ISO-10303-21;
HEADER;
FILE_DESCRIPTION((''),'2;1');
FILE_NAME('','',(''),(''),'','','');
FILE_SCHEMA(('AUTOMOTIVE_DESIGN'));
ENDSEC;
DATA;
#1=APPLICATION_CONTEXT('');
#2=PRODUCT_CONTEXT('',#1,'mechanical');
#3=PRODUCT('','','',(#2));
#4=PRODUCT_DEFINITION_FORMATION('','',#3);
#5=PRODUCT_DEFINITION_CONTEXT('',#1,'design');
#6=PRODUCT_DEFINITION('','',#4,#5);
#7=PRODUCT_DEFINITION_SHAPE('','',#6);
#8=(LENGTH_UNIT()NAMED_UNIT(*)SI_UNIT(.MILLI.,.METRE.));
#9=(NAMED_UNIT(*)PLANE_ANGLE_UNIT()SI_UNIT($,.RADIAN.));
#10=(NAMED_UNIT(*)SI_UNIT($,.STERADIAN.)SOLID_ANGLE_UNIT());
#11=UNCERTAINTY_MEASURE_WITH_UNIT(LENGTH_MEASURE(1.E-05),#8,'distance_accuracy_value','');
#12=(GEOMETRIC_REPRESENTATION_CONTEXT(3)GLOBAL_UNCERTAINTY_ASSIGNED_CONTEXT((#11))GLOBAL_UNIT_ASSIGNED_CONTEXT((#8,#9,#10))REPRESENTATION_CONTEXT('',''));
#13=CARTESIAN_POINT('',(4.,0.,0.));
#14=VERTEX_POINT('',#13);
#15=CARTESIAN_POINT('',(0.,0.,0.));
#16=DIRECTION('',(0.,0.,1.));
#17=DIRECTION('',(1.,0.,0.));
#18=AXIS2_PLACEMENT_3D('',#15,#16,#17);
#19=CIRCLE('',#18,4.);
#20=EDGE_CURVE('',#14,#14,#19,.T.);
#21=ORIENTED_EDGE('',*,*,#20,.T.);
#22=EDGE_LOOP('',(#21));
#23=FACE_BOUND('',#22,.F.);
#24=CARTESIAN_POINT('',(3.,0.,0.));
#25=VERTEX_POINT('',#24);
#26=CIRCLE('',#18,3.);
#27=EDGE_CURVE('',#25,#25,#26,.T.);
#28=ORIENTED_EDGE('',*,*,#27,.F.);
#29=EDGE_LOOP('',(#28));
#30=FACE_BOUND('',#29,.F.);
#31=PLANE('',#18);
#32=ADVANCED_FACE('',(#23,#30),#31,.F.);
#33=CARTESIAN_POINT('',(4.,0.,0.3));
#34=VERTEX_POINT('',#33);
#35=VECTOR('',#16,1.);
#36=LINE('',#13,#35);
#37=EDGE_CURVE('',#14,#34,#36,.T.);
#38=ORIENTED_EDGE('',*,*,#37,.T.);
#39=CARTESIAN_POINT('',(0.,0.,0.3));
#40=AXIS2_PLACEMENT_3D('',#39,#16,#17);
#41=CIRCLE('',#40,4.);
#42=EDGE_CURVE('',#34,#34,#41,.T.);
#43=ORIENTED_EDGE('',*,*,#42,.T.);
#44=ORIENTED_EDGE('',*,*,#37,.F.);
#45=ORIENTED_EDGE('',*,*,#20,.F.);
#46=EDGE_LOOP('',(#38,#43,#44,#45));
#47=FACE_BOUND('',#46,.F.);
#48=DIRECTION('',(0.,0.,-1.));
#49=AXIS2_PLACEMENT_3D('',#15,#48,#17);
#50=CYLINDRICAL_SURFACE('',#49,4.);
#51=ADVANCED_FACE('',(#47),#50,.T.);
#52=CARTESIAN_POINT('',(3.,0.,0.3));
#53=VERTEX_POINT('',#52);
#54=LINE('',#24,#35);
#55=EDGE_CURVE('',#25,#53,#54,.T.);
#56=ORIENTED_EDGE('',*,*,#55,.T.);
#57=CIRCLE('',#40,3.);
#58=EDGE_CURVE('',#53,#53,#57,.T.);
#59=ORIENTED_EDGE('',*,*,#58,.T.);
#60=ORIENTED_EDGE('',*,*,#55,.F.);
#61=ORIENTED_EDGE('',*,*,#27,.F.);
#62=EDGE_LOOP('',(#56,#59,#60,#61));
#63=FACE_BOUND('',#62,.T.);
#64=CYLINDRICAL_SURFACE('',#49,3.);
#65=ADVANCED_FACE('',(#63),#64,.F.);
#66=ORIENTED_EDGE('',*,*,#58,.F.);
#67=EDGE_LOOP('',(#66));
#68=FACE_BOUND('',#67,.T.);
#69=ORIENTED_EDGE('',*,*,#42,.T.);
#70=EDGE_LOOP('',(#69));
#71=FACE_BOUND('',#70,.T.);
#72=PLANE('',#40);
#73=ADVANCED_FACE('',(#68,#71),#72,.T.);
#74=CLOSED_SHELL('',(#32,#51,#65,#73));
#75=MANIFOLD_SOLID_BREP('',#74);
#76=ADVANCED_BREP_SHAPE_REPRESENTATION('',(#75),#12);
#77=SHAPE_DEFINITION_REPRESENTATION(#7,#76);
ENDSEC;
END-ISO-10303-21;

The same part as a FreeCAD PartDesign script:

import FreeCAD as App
import Part
import Sketcher

doc = App.newDocument("Part")
body = doc.addObject("PartDesign::Body", "Body")

sketch1 = body.newObject("Sketcher::SketchObject", "Sketch")
sketch1.AttachmentSupport = (doc.getObject("XY_Plane"), [""])
sketch1.MapMode = "FlatFace"
sketch1.addGeometry(Part.Circle(App.Vector(0, 0, 0), App.Vector(0, 0, 1), 4), False)
sketch1.addGeometry(Part.Circle(App.Vector(0, 0, 0), App.Vector(0, 0, 1), 3), False)
sketch1.addConstraint(Sketcher.Constraint("Coincident", 0, 3, -1, 1))
sketch1.addConstraint(Sketcher.Constraint("Coincident", 1, 3, -1, 1))
sketch1.addConstraint(Sketcher.Constraint("Diameter", 0, 8.0))
sketch1.addConstraint(Sketcher.Constraint("Diameter", 1, 6.0))
pad1 = body.newObject("PartDesign::Pad", "Pad")
pad1.Profile = sketch1
pad1.Length = 0.3

doc.recompute()
